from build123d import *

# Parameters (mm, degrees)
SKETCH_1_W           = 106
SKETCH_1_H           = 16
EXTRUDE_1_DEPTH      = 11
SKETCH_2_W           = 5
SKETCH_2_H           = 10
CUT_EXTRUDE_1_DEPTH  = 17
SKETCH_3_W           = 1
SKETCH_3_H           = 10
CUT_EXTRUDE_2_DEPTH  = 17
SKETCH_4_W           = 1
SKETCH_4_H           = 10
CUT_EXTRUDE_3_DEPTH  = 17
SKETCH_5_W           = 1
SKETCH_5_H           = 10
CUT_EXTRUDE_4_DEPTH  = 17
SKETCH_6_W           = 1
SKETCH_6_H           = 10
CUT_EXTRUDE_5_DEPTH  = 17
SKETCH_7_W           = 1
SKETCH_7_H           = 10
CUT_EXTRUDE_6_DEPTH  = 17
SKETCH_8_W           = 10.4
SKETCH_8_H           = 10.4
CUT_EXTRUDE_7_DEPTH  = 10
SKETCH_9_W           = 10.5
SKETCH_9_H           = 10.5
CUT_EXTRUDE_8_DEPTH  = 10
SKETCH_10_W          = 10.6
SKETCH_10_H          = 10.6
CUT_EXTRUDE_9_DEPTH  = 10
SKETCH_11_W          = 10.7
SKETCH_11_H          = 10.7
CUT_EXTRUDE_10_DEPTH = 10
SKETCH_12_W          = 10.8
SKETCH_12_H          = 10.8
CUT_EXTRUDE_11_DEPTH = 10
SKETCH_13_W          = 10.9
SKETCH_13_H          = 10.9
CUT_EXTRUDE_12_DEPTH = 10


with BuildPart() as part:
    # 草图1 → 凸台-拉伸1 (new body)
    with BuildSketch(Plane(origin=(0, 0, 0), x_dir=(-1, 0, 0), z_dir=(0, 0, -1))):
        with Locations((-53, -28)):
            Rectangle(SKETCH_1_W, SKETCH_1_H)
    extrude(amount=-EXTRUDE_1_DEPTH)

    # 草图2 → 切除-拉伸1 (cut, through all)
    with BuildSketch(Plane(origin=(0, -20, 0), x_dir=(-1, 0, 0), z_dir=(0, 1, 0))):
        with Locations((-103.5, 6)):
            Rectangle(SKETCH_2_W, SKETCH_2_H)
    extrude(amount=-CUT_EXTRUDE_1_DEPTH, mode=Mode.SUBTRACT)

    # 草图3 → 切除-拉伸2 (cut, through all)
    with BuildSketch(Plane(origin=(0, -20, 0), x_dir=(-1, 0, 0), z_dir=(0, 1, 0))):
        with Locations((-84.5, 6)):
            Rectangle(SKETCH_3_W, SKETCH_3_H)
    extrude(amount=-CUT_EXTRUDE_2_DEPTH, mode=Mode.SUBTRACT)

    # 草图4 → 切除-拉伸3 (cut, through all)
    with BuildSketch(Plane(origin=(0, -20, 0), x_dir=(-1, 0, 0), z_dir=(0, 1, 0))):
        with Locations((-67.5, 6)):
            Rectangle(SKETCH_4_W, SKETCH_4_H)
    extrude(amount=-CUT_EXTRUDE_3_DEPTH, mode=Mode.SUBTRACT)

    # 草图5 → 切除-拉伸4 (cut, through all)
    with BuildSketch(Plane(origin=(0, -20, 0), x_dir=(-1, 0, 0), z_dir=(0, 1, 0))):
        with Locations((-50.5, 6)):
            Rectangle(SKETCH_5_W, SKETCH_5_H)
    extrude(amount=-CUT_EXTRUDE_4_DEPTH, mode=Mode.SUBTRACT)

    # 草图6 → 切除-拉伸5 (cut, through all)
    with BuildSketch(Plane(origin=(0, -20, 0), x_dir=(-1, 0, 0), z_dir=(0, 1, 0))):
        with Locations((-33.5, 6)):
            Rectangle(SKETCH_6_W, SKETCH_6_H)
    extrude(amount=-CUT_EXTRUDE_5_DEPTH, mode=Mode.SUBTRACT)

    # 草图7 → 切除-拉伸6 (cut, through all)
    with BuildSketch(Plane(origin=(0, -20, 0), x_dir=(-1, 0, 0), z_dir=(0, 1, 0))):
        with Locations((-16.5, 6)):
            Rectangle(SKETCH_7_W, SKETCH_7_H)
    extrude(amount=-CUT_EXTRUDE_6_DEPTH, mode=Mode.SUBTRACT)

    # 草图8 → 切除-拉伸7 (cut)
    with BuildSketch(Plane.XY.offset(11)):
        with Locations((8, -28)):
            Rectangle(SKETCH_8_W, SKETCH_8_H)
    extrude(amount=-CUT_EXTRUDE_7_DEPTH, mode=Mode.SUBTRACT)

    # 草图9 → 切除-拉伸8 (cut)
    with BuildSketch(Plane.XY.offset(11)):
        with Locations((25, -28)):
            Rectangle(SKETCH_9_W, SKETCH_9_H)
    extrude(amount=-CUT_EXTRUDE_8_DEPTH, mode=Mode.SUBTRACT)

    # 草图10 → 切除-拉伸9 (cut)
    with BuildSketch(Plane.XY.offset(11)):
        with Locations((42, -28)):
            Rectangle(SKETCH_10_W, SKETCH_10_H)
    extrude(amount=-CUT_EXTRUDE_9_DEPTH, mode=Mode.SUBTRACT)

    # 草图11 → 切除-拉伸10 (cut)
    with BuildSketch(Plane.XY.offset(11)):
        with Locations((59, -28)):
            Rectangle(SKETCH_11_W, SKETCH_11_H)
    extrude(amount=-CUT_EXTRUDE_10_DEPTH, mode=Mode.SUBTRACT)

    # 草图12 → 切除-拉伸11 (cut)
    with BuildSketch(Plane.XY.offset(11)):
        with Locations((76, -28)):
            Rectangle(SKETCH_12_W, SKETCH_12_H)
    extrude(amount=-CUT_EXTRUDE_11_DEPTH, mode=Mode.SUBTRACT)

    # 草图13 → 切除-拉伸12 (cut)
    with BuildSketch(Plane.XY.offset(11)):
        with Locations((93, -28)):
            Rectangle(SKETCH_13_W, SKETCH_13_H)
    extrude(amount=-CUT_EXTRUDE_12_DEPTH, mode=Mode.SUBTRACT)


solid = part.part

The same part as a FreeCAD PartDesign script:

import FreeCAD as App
import Part
import Sketcher

V = App.Vector
Q = App.Units.Quantity

doc = App.newDocument("Part")
body = doc.addObject("PartDesign::Body", "Body")

# Sketch on XY plane
sketch1 = body.newObject("Sketcher::SketchObject", "Sketch")
sketch1.AttachmentSupport = (doc.getObject("XY_Plane"), [""])
sketch1.MapMode = "FlatFace"
sketch1.addGeometry(Part.LineSegment(V(106, -20, 0), V(106, -36, 0)), False)
sketch1.addGeometry(Part.LineSegment(V(106, -36, 0), V(0, -36, 0)), False)
sketch1.addGeometry(Part.LineSegment(V(0, -36, 0), V(0, -20, 0)), False)
sketch1.addGeometry(Part.LineSegment(V(0, -20, 0), V(106, -20, 0)), False)
sketch1.addConstraint(Sketcher.Constraint("Coincident", 0, 2, 1, 1))
sketch1.addConstraint(Sketcher.Constraint("Coincident", 1, 2, 2, 1))
sketch1.addConstraint(Sketcher.Constraint("Coincident", 2, 2, 3, 1))
sketch1.addConstraint(Sketcher.Constraint("Coincident", 3, 2, 0, 1))
sketch1.addConstraint(Sketcher.Constraint("Vertical", 0))
sketch1.addConstraint(Sketcher.Constraint("Horizontal", 1))
sketch1.addConstraint(Sketcher.Constraint("Vertical", 2))
sketch1.addConstraint(Sketcher.Constraint("Horizontal", 3))
sketch1.addConstraint(Sketcher.Constraint("PointOnObject", 1, 2, -2))
sketch1.addConstraint(Sketcher.Constraint("DistanceX", 1, 2, 1, 1, Q("106 mm")))
sketch1.addConstraint(Sketcher.Constraint("DistanceY", 0, 2, 0, 1, Q("16 mm")))
sketch1.addConstraint(Sketcher.Constraint("DistanceY", 0, 2, -1, 1, Q("36 mm")))
pad1 = body.newObject("PartDesign::Pad", "Pad")
pad1.Profile = sketch1
pad1.Length = 11

# Sketch on XZ plane
sketch2 = body.newObject("Sketcher::SketchObject", "Sketch001")
sketch2.AttachmentSupport = (doc.getObject("XZ_Plane"), [""])
sketch2.MapMode = "FlatFace"
sketch2.AttachmentOffset = App.Placement(V(0, 0, 20), App.Rotation())
sketch2.addGeometry(Part.LineSegment(V(106, 11, 0), V(106, 1, 0)), False)
sketch2.addGeometry(Part.LineSegment(V(106, 1, 0), V(101, 1, 0)), False)
sketch2.addGeometry(Part.LineSegment(V(101, 1, 0), V(101, 11, 0)), False)
sketch2.addGeometry(Part.LineSegment(V(101, 11, 0), V(106, 11, 0)), False)
sketch2.addConstraint(Sketcher.Constraint("Coincident", 0, 2, 1, 1))
sketch2.addConstraint(Sketcher.Constraint("Coincident", 1, 2, 2, 1))
sketch2.addConstraint(Sketcher.Constraint("Coincident", 2, 2, 3, 1))
sketch2.addConstraint(Sketcher.Constraint("Coincident", 3, 2, 0, 1))
sketch2.addConstraint(Sketcher.Constraint("Vertical", 0))
sketch2.addConstraint(Sketcher.Constraint("Horizontal", 1))
sketch2.addConstraint(Sketcher.Constraint("Vertical", 2))
sketch2.addConstraint(Sketcher.Constraint("Horizontal", 3))
sketch2.addConstraint(Sketcher.Constraint("DistanceX", 1, 2, 1, 1, Q("5 mm")))
sketch2.addConstraint(Sketcher.Constraint("DistanceY", 0, 2, 0, 1, Q("10 mm")))
sketch2.addConstraint(Sketcher.Constraint("DistanceX", -1, 1, 0, 2, Q("106 mm")))
sketch2.addConstraint(Sketcher.Constraint("DistanceY", -1, 1, 0, 2, Q("1 mm")))
pocket1 = body.newObject("PartDesign::Pocket", "Pocket")
pocket1.Profile = sketch2
pocket1.Type = "ThroughAll"
pocket1.Reversed = True

# Sketch on XZ plane
sketch3 = body.newObject("Sketcher::SketchObject", "Sketch002")
sketch3.AttachmentSupport = (doc.getObject("XZ_Plane"), [""])
sketch3.MapMode = "FlatFace"
sketch3.AttachmentOffset = App.Placement(V(0, 0, 20), App.Rotation())
sketch3.addGeometry(Part.LineSegment(V(85, 11, 0), V(85, 1, 0)), False)
sketch3.addGeometry(Part.LineSegment(V(85, 1, 0), V(84, 1, 0)), False)
sketch3.addGeometry(Part.LineSegment(V(84, 1, 0), V(84, 11, 0)), False)
sketch3.addGeometry(Part.LineSegment(V(84, 11, 0), V(85, 11, 0)), False)
sketch3.addConstraint(Sketcher.Constraint("Coincident", 0, 2, 1, 1))
sketch3.addConstraint(Sketcher.Constraint("Coincident", 1, 2, 2, 1))
sketch3.addConstraint(Sketcher.Constraint("Coincident", 2, 2, 3, 1))
sketch3.addConstraint(Sketcher.Constraint("Coincident", 3, 2, 0, 1))
sketch3.addConstraint(Sketcher.Constraint("Vertical", 0))
sketch3.addConstraint(Sketcher.Constraint("Horizontal", 1))
sketch3.addConstraint(Sketcher.Constraint("Vertical", 2))
sketch3.addConstraint(Sketcher.Constraint("Horizontal", 3))
sketch3.addConstraint(Sketcher.Constraint("DistanceX", 1, 2, 1, 1, Q("1 mm")))
sketch3.addConstraint(Sketcher.Constraint("DistanceY", 0, 2, 0, 1, Q("10 mm")))
sketch3.addConstraint(Sketcher.Constraint("DistanceX", -1, 1, 0, 2, Q("85 mm")))
sketch3.addConstraint(Sketcher.Constraint("DistanceY", -1, 1, 0, 2, Q("1 mm")))
pocket2 = body.newObject("PartDesign::Pocket", "Pocket001")
pocket2.Profile = sketch3
pocket2.Type = "ThroughAll"
pocket2.Reversed = True

# Sketch on XZ plane
sketch4 = body.newObject("Sketcher::SketchObject", "Sketch003")
sketch4.AttachmentSupport = (doc.getObject("XZ_Plane"), [""])
sketch4.MapMode = "FlatFace"
sketch4.AttachmentOffset = App.Placement(V(0, 0, 20), App.Rotation())
sketch4.addGeometry(Part.LineSegment(V(68, 11, 0), V(68, 1, 0)), False)
sketch4.addGeometry(Part.LineSegment(V(68, 1, 0), V(67, 1, 0)), False)
sketch4.addGeometry(Part.LineSegment(V(67, 1, 0), V(67, 11, 0)), False)
sketch4.addGeometry(Part.LineSegment(V(67, 11, 0), V(68, 11, 0)), False)
sketch4.addConstraint(Sketcher.Constraint("Coincident", 0, 2, 1, 1))
sketch4.addConstraint(Sketcher.Constraint("Coincident", 1, 2, 2, 1))
sketch4.addConstraint(Sketcher.Constraint("Coincident", 2, 2, 3, 1))
sketch4.addConstraint(Sketcher.Constraint("Coincident", 3, 2, 0, 1))
sketch4.addConstraint(Sketcher.Constraint("Vertical", 0))
sketch4.addConstraint(Sketcher.Constraint("Horizontal", 1))
sketch4.addConstraint(Sketcher.Constraint("Vertical", 2))
sketch4.addConstraint(Sketcher.Constraint("Horizontal", 3))
sketch4.addConstraint(Sketcher.Constraint("DistanceX", 1, 2, 1, 1, Q("1 mm")))
sketch4.addConstraint(Sketcher.Constraint("DistanceY", 0, 2, 0, 1, Q("10 mm")))
sketch4.addConstraint(Sketcher.Constraint("DistanceX", -1, 1, 0, 2, Q("68 mm")))
sketch4.addConstraint(Sketcher.Constraint("DistanceY", -1, 1, 0, 2, Q("1 mm")))
pocket3 = body.newObject("PartDesign::Pocket", "Pocket002")
pocket3.Profile = sketch4
pocket3.Type = "ThroughAll"
pocket3.Reversed = True

# Sketch on XZ plane
sketch5 = body.newObject("Sketcher::SketchObject", "Sketch004")
sketch5.AttachmentSupport = (doc.getObject("XZ_Plane"), [""])
sketch5.MapMode = "FlatFace"
sketch5.AttachmentOffset = App.Placement(V(0, 0, 20), App.Rotation())
sketch5.addGeometry(Part.LineSegment(V(51, 11, 0), V(51, 1, 0)), False)
sketch5.addGeometry(Part.LineSegment(V(51, 1, 0), V(50, 1, 0)), False)
sketch5.addGeometry(Part.LineSegment(V(50, 1, 0), V(50, 11, 0)), False)
sketch5.addGeometry(Part.LineSegment(V(50, 11, 0), V(51, 11, 0)), False)
sketch5.addConstraint(Sketcher.Constraint("Coincident", 0, 2, 1, 1))
sketch5.addConstraint(Sketcher.Constraint("Coincident", 1, 2, 2, 1))
sketch5.addConstraint(Sketcher.Constraint("Coincident", 2, 2, 3, 1))
sketch5.addConstraint(Sketcher.Constraint("Coincident", 3, 2, 0, 1))
sketch5.addConstraint(Sketcher.Constraint("Vertical", 0))
sketch5.addConstraint(Sketcher.Constraint("Horizontal", 1))
sketch5.addConstraint(Sketcher.Constraint("Vertical", 2))
sketch5.addConstraint(Sketcher.Constraint("Horizontal", 3))
sketch5.addConstraint(Sketcher.Constraint("DistanceX", 1, 2, 1, 1, Q("1 mm")))
sketch5.addConstraint(Sketcher.Constraint("DistanceY", 0, 2, 0, 1, Q("10 mm")))
sketch5.addConstraint(Sketcher.Constraint("DistanceX", -1, 1, 0, 2, Q("51 mm")))
sketch5.addConstraint(Sketcher.Constraint("DistanceY", -1, 1, 0, 2, Q("1 mm")))
pocket4 = body.newObject("PartDesign::Pocket", "Pocket003")
pocket4.Profile = sketch5
pocket4.Type = "ThroughAll"
pocket4.Reversed = True

# Sketch on XZ plane
sketch6 = body.newObject("Sketcher::SketchObject", "Sketch005")
sketch6.AttachmentSupport = (doc.getObject("XZ_Plane"), [""])
sketch6.MapMode = "FlatFace"
sketch6.AttachmentOffset = App.Placement(V(0, 0, 20), App.Rotation())
sketch6.addGeometry(Part.LineSegment(V(34, 11, 0), V(34, 1, 0)), False)
sketch6.addGeometry(Part.LineSegment(V(34, 1, 0), V(33, 1, 0)), False)
sketch6.addGeometry(Part.LineSegment(V(33, 1, 0), V(33, 11, 0)), False)
sketch6.addGeometry(Part.LineSegment(V(33, 11, 0), V(34, 11, 0)), False)
sketch6.addConstraint(Sketcher.Constraint("Coincident", 0, 2, 1, 1))
sketch6.addConstraint(Sketcher.Constraint("Coincident", 1, 2, 2, 1))
sketch6.addConstraint(Sketcher.Constraint("Coincident", 2, 2, 3, 1))
sketch6.addConstraint(Sketcher.Constraint("Coincident", 3, 2, 0, 1))
sketch6.addConstraint(Sketcher.Constraint("Vertical", 0))
sketch6.addConstraint(Sketcher.Constraint("Horizontal", 1))
sketch6.addConstraint(Sketcher.Constraint("Vertical", 2))
sketch6.addConstraint(Sketcher.Constraint("Horizontal", 3))
sketch6.addConstraint(Sketcher.Constraint("DistanceX", 1, 2, 1, 1, Q("1 mm")))
sketch6.addConstraint(Sketcher.Constraint("DistanceY", 0, 2, 0, 1, Q("10 mm")))
sketch6.addConstraint(Sketcher.Constraint("DistanceX", -1, 1, 0, 2, Q("34 mm")))
sketch6.addConstraint(Sketcher.Constraint("DistanceY", -1, 1, 0, 2, Q("1 mm")))
pocket5 = body.newObject("PartDesign::Pocket", "Pocket004")
pocket5.Profile = sketch6
pocket5.Type = "ThroughAll"
pocket5.Reversed = True

# Sketch on XZ plane
sketch7 = body.newObject("Sketcher::SketchObject", "Sketch006")
sketch7.AttachmentSupport = (doc.getObject("XZ_Plane"), [""])
sketch7.MapMode = "FlatFace"
sketch7.AttachmentOffset = App.Placement(V(0, 0, 20), App.Rotation())
sketch7.addGeometry(Part.LineSegment(V(17, 11, 0), V(17, 1, 0)), False)
sketch7.addGeometry(Part.LineSegment(V(17, 1, 0), V(16, 1, 0)), False)
sketch7.addGeometry(Part.LineSegment(V(16, 1, 0), V(16, 11, 0)), False)
sketch7.addGeometry(Part.LineSegment(V(16, 11, 0), V(17, 11, 0)), False)
sketch7.addConstraint(Sketcher.Constraint("Coincident", 0, 2, 1, 1))
sketch7.addConstraint(Sketcher.Constraint("Coincident", 1, 2, 2, 1))
sketch7.addConstraint(Sketcher.Constraint("Coincident", 2, 2, 3, 1))
sketch7.addConstraint(Sketcher.Constraint("Coincident", 3, 2, 0, 1))
sketch7.addConstraint(Sketcher.Constraint("Vertical", 0))
sketch7.addConstraint(Sketcher.Constraint("Horizontal", 1))
sketch7.addConstraint(Sketcher.Constraint("Vertical", 2))
sketch7.addConstraint(Sketcher.Constraint("Horizontal", 3))
sketch7.addConstraint(Sketcher.Constraint("DistanceX", 1, 2, 1, 1, Q("1 mm")))
sketch7.addConstraint(Sketcher.Constraint("DistanceY", 0, 2, 0, 1, Q("10 mm")))
sketch7.addConstraint(Sketcher.Constraint("DistanceX", -1, 1, 0, 2, Q("17 mm")))
sketch7.addConstraint(Sketcher.Constraint("DistanceY", -1, 1, 0, 2, Q("1 mm")))
pocket6 = body.newObject("PartDesign::Pocket", "Pocket005")
pocket6.Profile = sketch7
pocket6.Type = "ThroughAll"
pocket6.Reversed = True

# Sketch on XY plane
sketch8 = body.newObject("Sketcher::SketchObject", "Sketch007")
sketch8.AttachmentSupport = (doc.getObject("XY_Plane"), [""])
sketch8.MapMode = "FlatFace"
sketch8.AttachmentOffset = App.Placement(V(0, 0, 11), App.Rotation())
sketch8.addGeometry(Part.LineSegment(V(3, -23, 0), V(3, -33, 0)), False)
sketch8.addGeometry(Part.LineSegment(V(3, -33, 0), V(13, -33, 0)), False)
sketch8.addGeometry(Part.LineSegment(V(13, -33, 0), V(13, -23, 0)), False)
sketch8.addGeometry(Part.LineSegment(V(13, -23, 0), V(3, -23, 0)), False)
sketch8.addConstraint(Sketcher.Constraint("Coincident", 0, 2, 1, 1))
sketch8.addConstraint(Sketcher.Constraint("Coincident", 1, 2, 2, 1))
sketch8.addConstraint(Sketcher.Constraint("Coincident", 2, 2, 3, 1))
sketch8.addConstraint(Sketcher.Constraint("Coincident", 3, 2, 0, 1))
sketch8.addConstraint(Sketcher.Constraint("Vertical", 0))
sketch8.addConstraint(Sketcher.Constraint("Horizontal", 1))
sketch8.addConstraint(Sketcher.Constraint("Vertical", 2))
sketch8.addConstraint(Sketcher.Constraint("Horizontal", 3))
sketch8.addConstraint(Sketcher.Constraint("Equal", 3, 0))
sketch8.addConstraint(Sketcher.Constraint("DistanceX", 1, 1, 1, 2, Q("10.4 mm")))
sketch8.addConstraint(Sketcher.Constraint("DistanceX", -1, 1, 0, 2, Q("2.8 mm")))
sketch8.addConstraint(Sketcher.Constraint("DistanceY", 0, 2, -1, 1, Q("33.2 mm")))
pocket7 = body.newObject("PartDesign::Pocket", "Pocket006")
pocket7.Profile = sketch8
pocket7.Length = 10

# Sketch on XY plane
sketch9 = body.newObject("Sketcher::SketchObject", "Sketch008")
sketch9.AttachmentSupport = (doc.getObject("XY_Plane"), [""])
sketch9.MapMode = "FlatFace"
sketch9.AttachmentOffset = App.Placement(V(0, 0, 11), App.Rotation())
sketch9.addGeometry(Part.LineSegment(V(20, -23, 0), V(20, -33, 0)), False)
sketch9.addGeometry(Part.LineSegment(V(20, -33, 0), V(30, -33, 0)), False)
sketch9.addGeometry(Part.LineSegment(V(30, -33, 0), V(30, -23, 0)), False)
sketch9.addGeometry(Part.LineSegment(V(30, -23, 0), V(20, -23, 0)), False)
sketch9.addConstraint(Sketcher.Constraint("Coincident", 0, 2, 1, 1))
sketch9.addConstraint(Sketcher.Constraint("Coincident", 1, 2, 2, 1))
sketch9.addConstraint(Sketcher.Constraint("Coincident", 2, 2, 3, 1))
sketch9.addConstraint(Sketcher.Constraint("Coincident", 3, 2, 0, 1))
sketch9.addConstraint(Sketcher.Constraint("Vertical", 0))
sketch9.addConstraint(Sketcher.Constraint("Horizontal", 1))
sketch9.addConstraint(Sketcher.Constraint("Vertical", 2))
sketch9.addConstraint(Sketcher.Constraint("Horizontal", 3))
sketch9.addConstraint(Sketcher.Constraint("Equal", 3, 0))
sketch9.addConstraint(Sketcher.Constraint("DistanceX", 1, 1, 1, 2, Q("10.5 mm")))
sketch9.addConstraint(Sketcher.Constraint("DistanceX", -1, 1, 0, 2, Q("19.75 mm")))
sketch9.addConstraint(Sketcher.Constraint("DistanceY", 0, 2, -1, 1, Q("33.25 mm")))
pocket8 = body.newObject("PartDesign::Pocket", "Pocket007")
pocket8.Profile = sketch9
pocket8.Length = 10

# Sketch on XY plane
sketch10 = body.newObject("Sketcher::SketchObject", "Sketch009")
sketch10.AttachmentSupport = (doc.getObject("XY_Plane"), [""])
sketch10.MapMode = "FlatFace"
sketch10.AttachmentOffset = App.Placement(V(0, 0, 11), App.Rotation())
sketch10.addGeometry(Part.LineSegment(V(37, -23, 0), V(37, -33, 0)), False)
sketch10.addGeometry(Part.LineSegment(V(37, -33, 0), V(47, -33, 0)), False)
sketch10.addGeometry(Part.LineSegment(V(47, -33, 0), V(47, -23, 0)), False)
sketch10.addGeometry(Part.LineSegment(V(47, -23, 0), V(37, -23, 0)), False)
sketch10.addConstraint(Sketcher.Constraint("Coincident", 0, 2, 1, 1))
sketch10.addConstraint(Sketcher.Constraint("Coincident", 1, 2, 2, 1))
sketch10.addConstraint(Sketcher.Constraint("Coincident", 2, 2, 3, 1))
sketch10.addConstraint(Sketcher.Constraint("Coincident", 3, 2, 0, 1))
sketch10.addConstraint(Sketcher.Constraint("Vertical", 0))
sketch10.addConstraint(Sketcher.Constraint("Horizontal", 1))
sketch10.addConstraint(Sketcher.Constraint("Vertical", 2))
sketch10.addConstraint(Sketcher.Constraint("Horizontal", 3))
sketch10.addConstraint(Sketcher.Constraint("Equal", 3, 0))
sketch10.addConstraint(Sketcher.Constraint("DistanceX", 1, 1, 1, 2, Q("10.6 mm")))
sketch10.addConstraint(Sketcher.Constraint("DistanceX", -1, 1, 0, 2, Q("36.7 mm")))
sketch10.addConstraint(Sketcher.Constraint("DistanceY", 0, 2, -1, 1, Q("33.3 mm")))
pocket9 = body.newObject("PartDesign::Pocket", "Pocket008")
pocket9.Profile = sketch10
pocket9.Length = 10

# Sketch on XY plane
sketch11 = body.newObject("Sketcher::SketchObject", "Sketch010")
sketch11.AttachmentSupport = (doc.getObject("XY_Plane"), [""])
sketch11.MapMode = "FlatFace"
sketch11.AttachmentOffset = App.Placement(V(0, 0, 11), App.Rotation())
sketch11.addGeometry(Part.LineSegment(V(54, -23, 0), V(54, -33, 0)), False)
sketch11.addGeometry(Part.LineSegment(V(54, -33, 0), V(64, -33, 0)), False)
sketch11.addGeometry(Part.LineSegment(V(64, -33, 0), V(64, -23, 0)), False)
sketch11.addGeometry(Part.LineSegment(V(64, -23, 0), V(54, -23, 0)), False)
sketch11.addConstraint(Sketcher.Constraint("Coincident", 0, 2, 1, 1))
sketch11.addConstraint(Sketcher.Constraint("Coincident", 1, 2, 2, 1))
sketch11.addConstraint(Sketcher.Constraint("Coincident", 2, 2, 3, 1))
sketch11.addConstraint(Sketcher.Constraint("Coincident", 3, 2, 0, 1))
sketch11.addConstraint(Sketcher.Constraint("Vertical", 0))
sketch11.addConstraint(Sketcher.Constraint("Horizontal", 1))
sketch11.addConstraint(Sketcher.Constraint("Vertical", 2))
sketch11.addConstraint(Sketcher.Constraint("Horizontal", 3))
sketch11.addConstraint(Sketcher.Constraint("Equal", 3, 0))
sketch11.addConstraint(Sketcher.Constraint("DistanceX", 1, 1, 1, 2, Q("10.7 mm")))
sketch11.addConstraint(Sketcher.Constraint("DistanceX", -1, 1, 0, 2, Q("53.65 mm")))
sketch11.addConstraint(Sketcher.Constraint("DistanceY", 0, 2, -1, 1, Q("33.35 mm")))
pocket10 = body.newObject("PartDesign::Pocket", "Pocket009")
pocket10.Profile = sketch11
pocket10.Length = 10

# Sketch on XY plane
sketch12 = body.newObject("Sketcher::SketchObject", "Sketch011")
sketch12.AttachmentSupport = (doc.getObject("XY_Plane"), [""])
sketch12.MapMode = "FlatFace"
sketch12.AttachmentOffset = App.Placement(V(0, 0, 11), App.Rotation())
sketch12.addGeometry(Part.LineSegment(V(71, -23, 0), V(71, -33, 0)), False)
sketch12.addGeometry(Part.LineSegment(V(71, -33, 0), V(81, -33, 0)), False)
sketch12.addGeometry(Part.LineSegment(V(81, -33, 0), V(81, -23, 0)), False)
sketch12.addGeometry(Part.LineSegment(V(81, -23, 0), V(71, -23, 0)), False)
sketch12.addConstraint(Sketcher.Constraint("Coincident", 0, 2, 1, 1))
sketch12.addConstraint(Sketcher.Constraint("Coincident", 1, 2, 2, 1))
sketch12.addConstraint(Sketcher.Constraint("Coincident", 2, 2, 3, 1))
sketch12.addConstraint(Sketcher.Constraint("Coincident", 3, 2, 0, 1))
sketch12.addConstraint(Sketcher.Constraint("Vertical", 0))
sketch12.addConstraint(Sketcher.Constraint("Horizontal", 1))
sketch12.addConstraint(Sketcher.Constraint("Vertical", 2))
sketch12.addConstraint(Sketcher.Constraint("Horizontal", 3))
sketch12.addConstraint(Sketcher.Constraint("Equal", 3, 0))
sketch12.addConstraint(Sketcher.Constraint("DistanceX", 1, 1, 1, 2, Q("10.8 mm")))
sketch12.addConstraint(Sketcher.Constraint("DistanceX", -1, 1, 0, 2, Q("70.6 mm")))
sketch12.addConstraint(Sketcher.Constraint("DistanceY", 0, 2, -1, 1, Q("33.4 mm")))
pocket11 = body.newObject("PartDesign::Pocket", "Pocket010")
pocket11.Profile = sketch12
pocket11.Length = 10

# Sketch on XY plane
sketch13 = body.newObject("Sketcher::SketchObject", "Sketch012")
sketch13.AttachmentSupport = (doc.getObject("XY_Plane"), [""])
sketch13.MapMode = "FlatFace"
sketch13.AttachmentOffset = App.Placement(V(0, 0, 11), App.Rotation())
sketch13.addGeometry(Part.LineSegment(V(88, -23, 0), V(88, -33, 0)), False)
sketch13.addGeometry(Part.LineSegment(V(88, -33, 0), V(98, -33, 0)), False)
sketch13.addGeometry(Part.LineSegment(V(98, -33, 0), V(98, -23, 0)), False)
sketch13.addGeometry(Part.LineSegment(V(98, -23, 0), V(88, -23, 0)), False)
sketch13.addConstraint(Sketcher.Constraint("Coincident", 0, 2, 1, 1))
sketch13.addConstraint(Sketcher.Constraint("Coincident", 1, 2, 2, 1))
sketch13.addConstraint(Sketcher.Constraint("Coincident", 2, 2, 3, 1))
sketch13.addConstraint(Sketcher.Constraint("Coincident", 3, 2, 0, 1))
sketch13.addConstraint(Sketcher.Constraint("Vertical", 0))
sketch13.addConstraint(Sketcher.Constraint("Horizontal", 1))
sketch13.addConstraint(Sketcher.Constraint("Vertical", 2))
sketch13.addConstraint(Sketcher.Constraint("Horizontal", 3))
sketch13.addConstraint(Sketcher.Constraint("Equal", 3, 0))
sketch13.addConstraint(Sketcher.Constraint("DistanceX", 1, 1, 1, 2, Q("10.9 mm")))
sketch13.addConstraint(Sketcher.Constraint("DistanceX", -1, 1, 0, 2, Q("87.55 mm")))
sketch13.addConstraint(Sketcher.Constraint("DistanceY", 0, 2, -1, 1, Q("33.45 mm")))
pocket12 = body.newObject("PartDesign::Pocket", "Pocket011")
pocket12.Profile = sketch13
pocket12.Length = 10

doc.recompute()
